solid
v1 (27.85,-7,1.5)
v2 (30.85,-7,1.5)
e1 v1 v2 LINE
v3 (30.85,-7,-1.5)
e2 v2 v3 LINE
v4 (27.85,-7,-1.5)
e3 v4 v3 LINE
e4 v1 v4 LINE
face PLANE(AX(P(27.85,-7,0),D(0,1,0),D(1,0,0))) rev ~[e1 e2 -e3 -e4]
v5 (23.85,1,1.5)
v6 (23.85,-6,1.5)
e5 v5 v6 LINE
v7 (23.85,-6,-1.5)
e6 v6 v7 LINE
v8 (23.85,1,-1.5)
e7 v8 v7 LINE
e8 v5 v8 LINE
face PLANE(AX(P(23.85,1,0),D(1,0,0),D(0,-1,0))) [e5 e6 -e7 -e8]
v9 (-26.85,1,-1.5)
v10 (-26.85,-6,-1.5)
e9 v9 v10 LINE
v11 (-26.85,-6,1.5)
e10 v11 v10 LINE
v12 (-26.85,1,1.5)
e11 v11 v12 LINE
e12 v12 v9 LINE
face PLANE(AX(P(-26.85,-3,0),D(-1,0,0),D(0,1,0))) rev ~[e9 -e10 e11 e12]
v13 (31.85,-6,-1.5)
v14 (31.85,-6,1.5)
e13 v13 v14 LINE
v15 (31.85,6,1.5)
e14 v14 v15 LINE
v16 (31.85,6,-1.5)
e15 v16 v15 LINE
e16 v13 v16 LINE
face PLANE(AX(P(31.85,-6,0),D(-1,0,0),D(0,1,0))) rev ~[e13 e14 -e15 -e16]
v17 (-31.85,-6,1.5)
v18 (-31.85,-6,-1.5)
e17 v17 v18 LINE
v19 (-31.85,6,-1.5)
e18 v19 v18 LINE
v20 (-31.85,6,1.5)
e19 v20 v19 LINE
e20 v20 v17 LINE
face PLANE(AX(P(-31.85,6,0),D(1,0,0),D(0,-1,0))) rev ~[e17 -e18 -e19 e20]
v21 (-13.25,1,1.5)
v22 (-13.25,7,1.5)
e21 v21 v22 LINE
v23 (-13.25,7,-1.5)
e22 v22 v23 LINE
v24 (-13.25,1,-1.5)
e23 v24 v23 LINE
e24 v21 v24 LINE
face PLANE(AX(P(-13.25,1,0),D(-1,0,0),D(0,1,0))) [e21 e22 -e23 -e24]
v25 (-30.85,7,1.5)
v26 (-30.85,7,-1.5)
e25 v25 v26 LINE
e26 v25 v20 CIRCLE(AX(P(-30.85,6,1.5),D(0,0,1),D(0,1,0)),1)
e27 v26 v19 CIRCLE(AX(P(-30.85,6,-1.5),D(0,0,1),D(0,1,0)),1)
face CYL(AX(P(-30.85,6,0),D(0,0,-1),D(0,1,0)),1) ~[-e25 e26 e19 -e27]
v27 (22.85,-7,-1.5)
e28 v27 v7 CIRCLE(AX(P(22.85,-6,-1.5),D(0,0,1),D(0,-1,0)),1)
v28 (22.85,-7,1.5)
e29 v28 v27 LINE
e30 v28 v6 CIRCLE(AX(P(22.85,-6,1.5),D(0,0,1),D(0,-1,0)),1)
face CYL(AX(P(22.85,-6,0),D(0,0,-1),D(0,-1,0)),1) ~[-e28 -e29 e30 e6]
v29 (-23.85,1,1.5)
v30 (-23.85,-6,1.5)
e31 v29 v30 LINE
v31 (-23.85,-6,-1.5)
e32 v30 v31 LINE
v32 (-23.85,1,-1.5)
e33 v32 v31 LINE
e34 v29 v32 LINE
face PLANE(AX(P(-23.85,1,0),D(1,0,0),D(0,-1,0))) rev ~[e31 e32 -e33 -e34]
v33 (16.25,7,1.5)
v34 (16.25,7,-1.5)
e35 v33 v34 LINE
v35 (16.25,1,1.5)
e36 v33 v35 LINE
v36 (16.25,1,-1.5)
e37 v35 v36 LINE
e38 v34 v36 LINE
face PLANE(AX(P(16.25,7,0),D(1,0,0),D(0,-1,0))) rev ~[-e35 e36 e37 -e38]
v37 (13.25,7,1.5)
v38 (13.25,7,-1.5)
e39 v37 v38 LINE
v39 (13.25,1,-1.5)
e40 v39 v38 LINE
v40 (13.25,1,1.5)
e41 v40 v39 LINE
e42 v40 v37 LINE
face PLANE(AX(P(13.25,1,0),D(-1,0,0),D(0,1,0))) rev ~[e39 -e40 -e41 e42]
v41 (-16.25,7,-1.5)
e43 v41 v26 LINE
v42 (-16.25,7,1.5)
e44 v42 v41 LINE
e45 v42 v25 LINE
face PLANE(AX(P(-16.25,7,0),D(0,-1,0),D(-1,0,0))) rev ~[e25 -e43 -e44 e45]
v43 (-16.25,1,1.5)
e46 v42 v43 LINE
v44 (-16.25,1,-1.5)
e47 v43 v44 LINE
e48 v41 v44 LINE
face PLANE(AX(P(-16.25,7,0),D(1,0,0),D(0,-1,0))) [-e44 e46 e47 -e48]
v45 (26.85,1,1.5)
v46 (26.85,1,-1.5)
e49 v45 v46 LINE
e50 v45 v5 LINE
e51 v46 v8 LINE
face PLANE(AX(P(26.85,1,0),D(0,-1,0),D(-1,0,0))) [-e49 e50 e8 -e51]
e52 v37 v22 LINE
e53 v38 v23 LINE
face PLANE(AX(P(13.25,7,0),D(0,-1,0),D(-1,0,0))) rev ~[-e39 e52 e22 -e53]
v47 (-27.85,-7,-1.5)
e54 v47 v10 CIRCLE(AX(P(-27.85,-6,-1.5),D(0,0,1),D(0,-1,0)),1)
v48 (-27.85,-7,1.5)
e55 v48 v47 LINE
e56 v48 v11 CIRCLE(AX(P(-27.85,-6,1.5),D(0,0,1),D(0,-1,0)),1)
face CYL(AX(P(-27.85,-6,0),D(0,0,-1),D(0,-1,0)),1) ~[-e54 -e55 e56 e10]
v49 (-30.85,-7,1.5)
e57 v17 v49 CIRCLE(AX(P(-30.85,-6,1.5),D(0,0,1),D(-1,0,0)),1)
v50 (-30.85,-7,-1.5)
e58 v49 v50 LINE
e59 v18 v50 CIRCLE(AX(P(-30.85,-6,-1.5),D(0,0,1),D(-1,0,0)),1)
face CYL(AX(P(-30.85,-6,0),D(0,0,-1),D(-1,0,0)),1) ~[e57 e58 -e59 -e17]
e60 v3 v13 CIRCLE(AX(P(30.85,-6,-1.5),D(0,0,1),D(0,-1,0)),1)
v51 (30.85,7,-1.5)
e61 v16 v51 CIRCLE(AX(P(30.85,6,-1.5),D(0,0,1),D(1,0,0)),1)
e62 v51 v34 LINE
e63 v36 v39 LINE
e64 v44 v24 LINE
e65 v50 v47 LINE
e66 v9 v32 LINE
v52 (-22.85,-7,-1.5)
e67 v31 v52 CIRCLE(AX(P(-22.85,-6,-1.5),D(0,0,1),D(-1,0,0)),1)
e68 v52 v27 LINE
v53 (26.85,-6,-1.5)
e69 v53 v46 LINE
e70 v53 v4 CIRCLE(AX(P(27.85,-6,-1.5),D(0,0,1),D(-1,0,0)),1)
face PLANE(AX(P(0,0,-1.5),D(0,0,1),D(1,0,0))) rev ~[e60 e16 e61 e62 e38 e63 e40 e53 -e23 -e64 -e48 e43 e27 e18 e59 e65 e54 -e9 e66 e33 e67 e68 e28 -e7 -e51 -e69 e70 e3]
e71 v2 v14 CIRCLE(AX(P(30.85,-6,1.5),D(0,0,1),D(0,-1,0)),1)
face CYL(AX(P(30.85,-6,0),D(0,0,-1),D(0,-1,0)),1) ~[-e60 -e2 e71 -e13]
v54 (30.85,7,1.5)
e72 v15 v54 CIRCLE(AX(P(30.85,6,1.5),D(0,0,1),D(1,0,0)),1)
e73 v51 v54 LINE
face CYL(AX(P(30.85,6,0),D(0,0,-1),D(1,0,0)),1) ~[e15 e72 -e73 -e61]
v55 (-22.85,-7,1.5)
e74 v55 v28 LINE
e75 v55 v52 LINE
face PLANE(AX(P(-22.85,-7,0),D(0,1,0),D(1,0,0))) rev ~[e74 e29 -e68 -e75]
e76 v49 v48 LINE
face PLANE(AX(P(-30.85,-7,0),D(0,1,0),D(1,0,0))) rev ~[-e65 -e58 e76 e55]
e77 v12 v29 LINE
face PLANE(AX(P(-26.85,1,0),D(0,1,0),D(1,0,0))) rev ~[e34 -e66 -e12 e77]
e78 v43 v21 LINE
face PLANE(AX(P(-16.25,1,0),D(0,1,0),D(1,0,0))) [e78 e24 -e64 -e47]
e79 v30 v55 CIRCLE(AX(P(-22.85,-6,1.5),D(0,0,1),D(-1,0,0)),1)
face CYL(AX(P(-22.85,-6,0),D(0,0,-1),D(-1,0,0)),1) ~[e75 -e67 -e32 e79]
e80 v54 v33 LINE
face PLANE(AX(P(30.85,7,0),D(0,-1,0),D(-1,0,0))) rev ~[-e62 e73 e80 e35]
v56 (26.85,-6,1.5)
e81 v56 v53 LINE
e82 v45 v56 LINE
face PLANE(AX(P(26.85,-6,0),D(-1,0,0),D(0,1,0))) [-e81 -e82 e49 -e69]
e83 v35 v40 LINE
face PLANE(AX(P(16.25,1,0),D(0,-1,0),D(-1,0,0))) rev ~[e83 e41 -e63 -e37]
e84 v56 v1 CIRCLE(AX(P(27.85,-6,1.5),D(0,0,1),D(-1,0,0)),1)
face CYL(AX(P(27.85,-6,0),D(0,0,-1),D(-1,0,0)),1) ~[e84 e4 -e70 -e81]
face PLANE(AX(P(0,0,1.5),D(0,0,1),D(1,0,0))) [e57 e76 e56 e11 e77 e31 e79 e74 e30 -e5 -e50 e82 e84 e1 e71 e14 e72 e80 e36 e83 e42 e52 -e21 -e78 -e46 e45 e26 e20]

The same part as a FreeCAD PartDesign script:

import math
import FreeCAD as App
import Part
import Sketcher
Q = App.Units.Quantity

doc = App.newDocument("Part")
body = doc.addObject("PartDesign::Body", "Body")

# Sketch on XY plane
sketch1 = body.newObject("Sketcher::SketchObject", "Sketch")
sketch1.AttachmentSupport = (doc.getObject("XY_Plane"), [""])
sketch1.MapMode = "FlatFace"
sketch1.addGeometry(Part.ArcOfCircle(Part.Circle(App.Vector(30.85, -6, 0), App.Vector(0, 0, 1), 1), math.radians(-90), math.radians(0)), False)
sketch1.addGeometry(Part.LineSegment(App.Vector(31.85, -6, 0), App.Vector(31.85, 6, 0)), False)
sketch1.addGeometry(Part.ArcOfCircle(Part.Circle(App.Vector(30.85, 6, 0), App.Vector(0, 0, 1), 1), math.radians(0), math.radians(90)), False)
sketch1.addGeometry(Part.LineSegment(App.Vector(30.85, 7, 0), App.Vector(16.25, 7, 0)), False)
sketch1.addGeometry(Part.LineSegment(App.Vector(16.25, 7, 0), App.Vector(16.25, 1, 0)), False)
sketch1.addGeometry(Part.LineSegment(App.Vector(16.25, 1, 0), App.Vector(13.25, 1, 0)), False)
sketch1.addGeometry(Part.LineSegment(App.Vector(13.25, 1, 0), App.Vector(13.25, 7, 0)), False)
sketch1.addGeometry(Part.LineSegment(App.Vector(13.25, 7, 0), App.Vector(-13.25, 7, 0)), False)
sketch1.addGeometry(Part.LineSegment(App.Vector(-13.25, 7, 0), App.Vector(-13.25, 1, 0)), False)
sketch1.addGeometry(Part.LineSegment(App.Vector(-13.25, 1, 0), App.Vector(-16.25, 1, 0)), False)
sketch1.addGeometry(Part.LineSegment(App.Vector(-16.25, 1, 0), App.Vector(-16.25, 7, 0)), False)
sketch1.addGeometry(Part.LineSegment(App.Vector(-16.25, 7, 0), App.Vector(-30.85, 7, 0)), False)
sketch1.addGeometry(Part.ArcOfCircle(Part.Circle(App.Vector(-30.85, 6, 0), App.Vector(0, 0, 1), 1), math.radians(90), math.radians(180)), False)
sketch1.addGeometry(Part.LineSegment(App.Vector(-31.85, 6, 0), App.Vector(-31.85, -6, 0)), False)
sketch1.addGeometry(Part.ArcOfCircle(Part.Circle(App.Vector(-30.85, -6, 0), App.Vector(0, 0, 1), 1), math.radians(180), math.radians(270)), False)
sketch1.addGeometry(Part.LineSegment(App.Vector(-30.85, -7, 0), App.Vector(-27.85, -7, 0)), False)
sketch1.addGeometry(Part.ArcOfCircle(Part.Circle(App.Vector(-27.85, -6, 0), App.Vector(0, 0, 1), 1), math.radians(-90), math.radians(0)), False)
sketch1.addGeometry(Part.LineSegment(App.Vector(-26.85, -6, 0), App.Vector(-26.85, 1, 0)), False)
sketch1.addGeometry(Part.LineSegment(App.Vector(-26.85, 1, 0), App.Vector(-23.85, 1, 0)), False)
sketch1.addGeometry(Part.LineSegment(App.Vector(-23.85, 1, 0), App.Vector(-23.85, -6, 0)), False)
sketch1.addGeometry(Part.ArcOfCircle(Part.Circle(App.Vector(-22.85, -6, 0), App.Vector(0, 0, 1), 1), math.radians(180), math.radians(270)), False)
sketch1.addGeometry(Part.LineSegment(App.Vector(-22.85, -7, 0), App.Vector(22.85, -7, 0)), False)
sketch1.addGeometry(Part.ArcOfCircle(Part.Circle(App.Vector(22.85, -6, 0), App.Vector(0, 0, 1), 1), math.radians(-90), math.radians(0)), False)
sketch1.addGeometry(Part.LineSegment(App.Vector(23.85, -6, 0), App.Vector(23.85, 1, 0)), False)
sketch1.addGeometry(Part.LineSegment(App.Vector(23.85, 1, 0), App.Vector(26.85, 1, 0)), False)
sketch1.addGeometry(Part.LineSegment(App.Vector(26.85, 1, 0), App.Vector(26.85, -6, 0)), False)
sketch1.addGeometry(Part.ArcOfCircle(Part.Circle(App.Vector(27.85, -6, 0), App.Vector(0, 0, 1), 1), math.radians(180), math.radians(270)), False)
sketch1.addGeometry(Part.LineSegment(App.Vector(27.85, -7, 0), App.Vector(30.85, -7, 0)), False)
sketch1.addConstraint(Sketcher.Constraint("Tangent", 0, 2, 1, 1))
sketch1.addConstraint(Sketcher.Constraint("Tangent", 1, 2, 2, 1))
sketch1.addConstraint(Sketcher.Constraint("Tangent", 2, 2, 3, 1))
sketch1.addConstraint(Sketcher.Constraint("Coincident", 3, 2, 4, 1))
sketch1.addConstraint(Sketcher.Constraint("Coincident", 4, 2, 5, 1))
sketch1.addConstraint(Sketcher.Constraint("Coincident", 5, 2, 6, 1))
sketch1.addConstraint(Sketcher.Constraint("Coincident", 6, 2, 7, 1))
sketch1.addConstraint(Sketcher.Constraint("Coincident", 7, 2, 8, 1))
sketch1.addConstraint(Sketcher.Constraint("Coincident", 8, 2, 9, 1))
sketch1.addConstraint(Sketcher.Constraint("Coincident", 9, 2, 10, 1))
sketch1.addConstraint(Sketcher.Constraint("Coincident", 10, 2, 11, 1))
sketch1.addConstraint(Sketcher.Constraint("Tangent", 11, 2, 12, 1))
sketch1.addConstraint(Sketcher.Constraint("Tangent", 12, 2, 13, 1))
sketch1.addConstraint(Sketcher.Constraint("Tangent", 13, 2, 14, 1))
sketch1.addConstraint(Sketcher.Constraint("Tangent", 14, 2, 15, 1))
sketch1.addConstraint(Sketcher.Constraint("Tangent", 15, 2, 16, 1))
sketch1.addConstraint(Sketcher.Constraint("Tangent", 16, 2, 17, 1))
sketch1.addConstraint(Sketcher.Constraint("Coincident", 17, 2, 18, 1))
sketch1.addConstraint(Sketcher.Constraint("Coincident", 18, 2, 19, 1))
sketch1.addConstraint(Sketcher.Constraint("Tangent", 19, 2, 20, 1))
sketch1.addConstraint(Sketcher.Constraint("Tangent", 20, 2, 21, 1))
sketch1.addConstraint(Sketcher.Constraint("Tangent", 21, 2, 22, 1))
sketch1.addConstraint(Sketcher.Constraint("Tangent", 22, 2, 23, 1))
sketch1.addConstraint(Sketcher.Constraint("Coincident", 23, 2, 24, 1))
sketch1.addConstraint(Sketcher.Constraint("Coincident", 24, 2, 25, 1))
sketch1.addConstraint(Sketcher.Constraint("Tangent", 25, 2, 26, 1))
sketch1.addConstraint(Sketcher.Constraint("Tangent", 26, 2, 27, 1))
sketch1.addConstraint(Sketcher.Constraint("Tangent", 27, 2, 0, 1))
sketch1.addConstraint(Sketcher.Constraint("Vertical", 1))
sketch1.addConstraint(Sketcher.Constraint("Horizontal", 3))
sketch1.addConstraint(Sketcher.Constraint("Vertical", 4))
sketch1.addConstraint(Sketcher.Constraint("Horizontal", 5))
sketch1.addConstraint(Sketcher.Constraint("Vertical", 6))
sketch1.addConstraint(Sketcher.Constraint("Horizontal", 7))
sketch1.addConstraint(Sketcher.Constraint("Vertical", 8))
sketch1.addConstraint(Sketcher.Constraint("Horizontal", 9))
sketch1.addConstraint(Sketcher.Constraint("Vertical", 10))
sketch1.addConstraint(Sketcher.Constraint("Horizontal", 11))
sketch1.addConstraint(Sketcher.Constraint("Vertical", 13))
sketch1.addConstraint(Sketcher.Constraint("Horizontal", 15))
sketch1.addConstraint(Sketcher.Constraint("Vertical", 17))
sketch1.addConstraint(Sketcher.Constraint("Horizontal", 18))
sketch1.addConstraint(Sketcher.Constraint("Vertical", 19))
sketch1.addConstraint(Sketcher.Constraint("Horizontal", 21))
sketch1.addConstraint(Sketcher.Constraint("Vertical", 23))
sketch1.addConstraint(Sketcher.Constraint("Horizontal", 24))
sketch1.addConstraint(Sketcher.Constraint("Vertical", 25))
sketch1.addConstraint(Sketcher.Constraint("Horizontal", 27))
sketch1.addConstraint(Sketcher.Constraint("Equal", 0, 2))
sketch1.addConstraint(Sketcher.Constraint("Equal", 2, 12))
sketch1.addConstraint(Sketcher.Constraint("Equal", 12, 14))
sketch1.addConstraint(Sketcher.Constraint("Equal", 14, 16))
sketch1.addConstraint(Sketcher.Constraint("Equal", 16, 20))
sketch1.addConstraint(Sketcher.Constraint("Equal", 20, 22))
sketch1.addConstraint(Sketcher.Constraint("Equal", 22, 26))
sketch1.addConstraint(Sketcher.Constraint("Symmetric", 0, 3, 12, 3, -1, 1))
sketch1.addConstraint(Sketcher.Constraint("Symmetric", 16, 3, 26, 3, -2))
sketch1.addConstraint(Sketcher.Constraint("Symmetric", 5, 2, 8, 2, -2))
sketch1.addConstraint(Sketcher.Constraint("Symmetric", 3, 2, 10, 2, -2))
sketch1.addConstraint(Sketcher.Constraint("Symmetric", 18, 2, 23, 2, -2))
sketch1.addConstraint(Sketcher.Constraint("Horizontal", 16, 3, 20, 3))
sketch1.addConstraint(Sketcher.Constraint("Horizontal", 3, 2, 6, 2))
sketch1.addConstraint(Sketcher.Constraint("Horizontal", 9, 2, 17, 2))
sketch1.addConstraint(Sketcher.Constraint("Equal", 9, 15))
sketch1.addConstraint(Sketcher.Constraint("Equal", 15, 18))
sketch1.addConstraint(Sketcher.Constraint("Radius", 0, Q("1 mm")))
sketch1.addConstraint(Sketcher.Constraint("DistanceX", 5, 2, 5, 1, Q("3 mm")))
sketch1.addConstraint(Sketcher.Constraint("DistanceY", 4, 2, 4, 1, Q("6 mm")))
sketch1.addConstraint(Sketcher.Constraint("DistanceY", 0, 3, -1, 1, Q("6 mm")))
sketch1.addConstraint(Sketcher.Constraint("DistanceX", 18, 2, -1, 1, Q("23.85 mm")))
sketch1.addConstraint(Sketcher.Constraint("DistanceX", 3, 2, 3, 1, Q("14.6 mm")))
pad1 = body.newObject("PartDesign::Pad", "Pad")
pad1.Profile = sketch1
pad1.Length = 3
pad1.Midplane = True

doc.recompute()
